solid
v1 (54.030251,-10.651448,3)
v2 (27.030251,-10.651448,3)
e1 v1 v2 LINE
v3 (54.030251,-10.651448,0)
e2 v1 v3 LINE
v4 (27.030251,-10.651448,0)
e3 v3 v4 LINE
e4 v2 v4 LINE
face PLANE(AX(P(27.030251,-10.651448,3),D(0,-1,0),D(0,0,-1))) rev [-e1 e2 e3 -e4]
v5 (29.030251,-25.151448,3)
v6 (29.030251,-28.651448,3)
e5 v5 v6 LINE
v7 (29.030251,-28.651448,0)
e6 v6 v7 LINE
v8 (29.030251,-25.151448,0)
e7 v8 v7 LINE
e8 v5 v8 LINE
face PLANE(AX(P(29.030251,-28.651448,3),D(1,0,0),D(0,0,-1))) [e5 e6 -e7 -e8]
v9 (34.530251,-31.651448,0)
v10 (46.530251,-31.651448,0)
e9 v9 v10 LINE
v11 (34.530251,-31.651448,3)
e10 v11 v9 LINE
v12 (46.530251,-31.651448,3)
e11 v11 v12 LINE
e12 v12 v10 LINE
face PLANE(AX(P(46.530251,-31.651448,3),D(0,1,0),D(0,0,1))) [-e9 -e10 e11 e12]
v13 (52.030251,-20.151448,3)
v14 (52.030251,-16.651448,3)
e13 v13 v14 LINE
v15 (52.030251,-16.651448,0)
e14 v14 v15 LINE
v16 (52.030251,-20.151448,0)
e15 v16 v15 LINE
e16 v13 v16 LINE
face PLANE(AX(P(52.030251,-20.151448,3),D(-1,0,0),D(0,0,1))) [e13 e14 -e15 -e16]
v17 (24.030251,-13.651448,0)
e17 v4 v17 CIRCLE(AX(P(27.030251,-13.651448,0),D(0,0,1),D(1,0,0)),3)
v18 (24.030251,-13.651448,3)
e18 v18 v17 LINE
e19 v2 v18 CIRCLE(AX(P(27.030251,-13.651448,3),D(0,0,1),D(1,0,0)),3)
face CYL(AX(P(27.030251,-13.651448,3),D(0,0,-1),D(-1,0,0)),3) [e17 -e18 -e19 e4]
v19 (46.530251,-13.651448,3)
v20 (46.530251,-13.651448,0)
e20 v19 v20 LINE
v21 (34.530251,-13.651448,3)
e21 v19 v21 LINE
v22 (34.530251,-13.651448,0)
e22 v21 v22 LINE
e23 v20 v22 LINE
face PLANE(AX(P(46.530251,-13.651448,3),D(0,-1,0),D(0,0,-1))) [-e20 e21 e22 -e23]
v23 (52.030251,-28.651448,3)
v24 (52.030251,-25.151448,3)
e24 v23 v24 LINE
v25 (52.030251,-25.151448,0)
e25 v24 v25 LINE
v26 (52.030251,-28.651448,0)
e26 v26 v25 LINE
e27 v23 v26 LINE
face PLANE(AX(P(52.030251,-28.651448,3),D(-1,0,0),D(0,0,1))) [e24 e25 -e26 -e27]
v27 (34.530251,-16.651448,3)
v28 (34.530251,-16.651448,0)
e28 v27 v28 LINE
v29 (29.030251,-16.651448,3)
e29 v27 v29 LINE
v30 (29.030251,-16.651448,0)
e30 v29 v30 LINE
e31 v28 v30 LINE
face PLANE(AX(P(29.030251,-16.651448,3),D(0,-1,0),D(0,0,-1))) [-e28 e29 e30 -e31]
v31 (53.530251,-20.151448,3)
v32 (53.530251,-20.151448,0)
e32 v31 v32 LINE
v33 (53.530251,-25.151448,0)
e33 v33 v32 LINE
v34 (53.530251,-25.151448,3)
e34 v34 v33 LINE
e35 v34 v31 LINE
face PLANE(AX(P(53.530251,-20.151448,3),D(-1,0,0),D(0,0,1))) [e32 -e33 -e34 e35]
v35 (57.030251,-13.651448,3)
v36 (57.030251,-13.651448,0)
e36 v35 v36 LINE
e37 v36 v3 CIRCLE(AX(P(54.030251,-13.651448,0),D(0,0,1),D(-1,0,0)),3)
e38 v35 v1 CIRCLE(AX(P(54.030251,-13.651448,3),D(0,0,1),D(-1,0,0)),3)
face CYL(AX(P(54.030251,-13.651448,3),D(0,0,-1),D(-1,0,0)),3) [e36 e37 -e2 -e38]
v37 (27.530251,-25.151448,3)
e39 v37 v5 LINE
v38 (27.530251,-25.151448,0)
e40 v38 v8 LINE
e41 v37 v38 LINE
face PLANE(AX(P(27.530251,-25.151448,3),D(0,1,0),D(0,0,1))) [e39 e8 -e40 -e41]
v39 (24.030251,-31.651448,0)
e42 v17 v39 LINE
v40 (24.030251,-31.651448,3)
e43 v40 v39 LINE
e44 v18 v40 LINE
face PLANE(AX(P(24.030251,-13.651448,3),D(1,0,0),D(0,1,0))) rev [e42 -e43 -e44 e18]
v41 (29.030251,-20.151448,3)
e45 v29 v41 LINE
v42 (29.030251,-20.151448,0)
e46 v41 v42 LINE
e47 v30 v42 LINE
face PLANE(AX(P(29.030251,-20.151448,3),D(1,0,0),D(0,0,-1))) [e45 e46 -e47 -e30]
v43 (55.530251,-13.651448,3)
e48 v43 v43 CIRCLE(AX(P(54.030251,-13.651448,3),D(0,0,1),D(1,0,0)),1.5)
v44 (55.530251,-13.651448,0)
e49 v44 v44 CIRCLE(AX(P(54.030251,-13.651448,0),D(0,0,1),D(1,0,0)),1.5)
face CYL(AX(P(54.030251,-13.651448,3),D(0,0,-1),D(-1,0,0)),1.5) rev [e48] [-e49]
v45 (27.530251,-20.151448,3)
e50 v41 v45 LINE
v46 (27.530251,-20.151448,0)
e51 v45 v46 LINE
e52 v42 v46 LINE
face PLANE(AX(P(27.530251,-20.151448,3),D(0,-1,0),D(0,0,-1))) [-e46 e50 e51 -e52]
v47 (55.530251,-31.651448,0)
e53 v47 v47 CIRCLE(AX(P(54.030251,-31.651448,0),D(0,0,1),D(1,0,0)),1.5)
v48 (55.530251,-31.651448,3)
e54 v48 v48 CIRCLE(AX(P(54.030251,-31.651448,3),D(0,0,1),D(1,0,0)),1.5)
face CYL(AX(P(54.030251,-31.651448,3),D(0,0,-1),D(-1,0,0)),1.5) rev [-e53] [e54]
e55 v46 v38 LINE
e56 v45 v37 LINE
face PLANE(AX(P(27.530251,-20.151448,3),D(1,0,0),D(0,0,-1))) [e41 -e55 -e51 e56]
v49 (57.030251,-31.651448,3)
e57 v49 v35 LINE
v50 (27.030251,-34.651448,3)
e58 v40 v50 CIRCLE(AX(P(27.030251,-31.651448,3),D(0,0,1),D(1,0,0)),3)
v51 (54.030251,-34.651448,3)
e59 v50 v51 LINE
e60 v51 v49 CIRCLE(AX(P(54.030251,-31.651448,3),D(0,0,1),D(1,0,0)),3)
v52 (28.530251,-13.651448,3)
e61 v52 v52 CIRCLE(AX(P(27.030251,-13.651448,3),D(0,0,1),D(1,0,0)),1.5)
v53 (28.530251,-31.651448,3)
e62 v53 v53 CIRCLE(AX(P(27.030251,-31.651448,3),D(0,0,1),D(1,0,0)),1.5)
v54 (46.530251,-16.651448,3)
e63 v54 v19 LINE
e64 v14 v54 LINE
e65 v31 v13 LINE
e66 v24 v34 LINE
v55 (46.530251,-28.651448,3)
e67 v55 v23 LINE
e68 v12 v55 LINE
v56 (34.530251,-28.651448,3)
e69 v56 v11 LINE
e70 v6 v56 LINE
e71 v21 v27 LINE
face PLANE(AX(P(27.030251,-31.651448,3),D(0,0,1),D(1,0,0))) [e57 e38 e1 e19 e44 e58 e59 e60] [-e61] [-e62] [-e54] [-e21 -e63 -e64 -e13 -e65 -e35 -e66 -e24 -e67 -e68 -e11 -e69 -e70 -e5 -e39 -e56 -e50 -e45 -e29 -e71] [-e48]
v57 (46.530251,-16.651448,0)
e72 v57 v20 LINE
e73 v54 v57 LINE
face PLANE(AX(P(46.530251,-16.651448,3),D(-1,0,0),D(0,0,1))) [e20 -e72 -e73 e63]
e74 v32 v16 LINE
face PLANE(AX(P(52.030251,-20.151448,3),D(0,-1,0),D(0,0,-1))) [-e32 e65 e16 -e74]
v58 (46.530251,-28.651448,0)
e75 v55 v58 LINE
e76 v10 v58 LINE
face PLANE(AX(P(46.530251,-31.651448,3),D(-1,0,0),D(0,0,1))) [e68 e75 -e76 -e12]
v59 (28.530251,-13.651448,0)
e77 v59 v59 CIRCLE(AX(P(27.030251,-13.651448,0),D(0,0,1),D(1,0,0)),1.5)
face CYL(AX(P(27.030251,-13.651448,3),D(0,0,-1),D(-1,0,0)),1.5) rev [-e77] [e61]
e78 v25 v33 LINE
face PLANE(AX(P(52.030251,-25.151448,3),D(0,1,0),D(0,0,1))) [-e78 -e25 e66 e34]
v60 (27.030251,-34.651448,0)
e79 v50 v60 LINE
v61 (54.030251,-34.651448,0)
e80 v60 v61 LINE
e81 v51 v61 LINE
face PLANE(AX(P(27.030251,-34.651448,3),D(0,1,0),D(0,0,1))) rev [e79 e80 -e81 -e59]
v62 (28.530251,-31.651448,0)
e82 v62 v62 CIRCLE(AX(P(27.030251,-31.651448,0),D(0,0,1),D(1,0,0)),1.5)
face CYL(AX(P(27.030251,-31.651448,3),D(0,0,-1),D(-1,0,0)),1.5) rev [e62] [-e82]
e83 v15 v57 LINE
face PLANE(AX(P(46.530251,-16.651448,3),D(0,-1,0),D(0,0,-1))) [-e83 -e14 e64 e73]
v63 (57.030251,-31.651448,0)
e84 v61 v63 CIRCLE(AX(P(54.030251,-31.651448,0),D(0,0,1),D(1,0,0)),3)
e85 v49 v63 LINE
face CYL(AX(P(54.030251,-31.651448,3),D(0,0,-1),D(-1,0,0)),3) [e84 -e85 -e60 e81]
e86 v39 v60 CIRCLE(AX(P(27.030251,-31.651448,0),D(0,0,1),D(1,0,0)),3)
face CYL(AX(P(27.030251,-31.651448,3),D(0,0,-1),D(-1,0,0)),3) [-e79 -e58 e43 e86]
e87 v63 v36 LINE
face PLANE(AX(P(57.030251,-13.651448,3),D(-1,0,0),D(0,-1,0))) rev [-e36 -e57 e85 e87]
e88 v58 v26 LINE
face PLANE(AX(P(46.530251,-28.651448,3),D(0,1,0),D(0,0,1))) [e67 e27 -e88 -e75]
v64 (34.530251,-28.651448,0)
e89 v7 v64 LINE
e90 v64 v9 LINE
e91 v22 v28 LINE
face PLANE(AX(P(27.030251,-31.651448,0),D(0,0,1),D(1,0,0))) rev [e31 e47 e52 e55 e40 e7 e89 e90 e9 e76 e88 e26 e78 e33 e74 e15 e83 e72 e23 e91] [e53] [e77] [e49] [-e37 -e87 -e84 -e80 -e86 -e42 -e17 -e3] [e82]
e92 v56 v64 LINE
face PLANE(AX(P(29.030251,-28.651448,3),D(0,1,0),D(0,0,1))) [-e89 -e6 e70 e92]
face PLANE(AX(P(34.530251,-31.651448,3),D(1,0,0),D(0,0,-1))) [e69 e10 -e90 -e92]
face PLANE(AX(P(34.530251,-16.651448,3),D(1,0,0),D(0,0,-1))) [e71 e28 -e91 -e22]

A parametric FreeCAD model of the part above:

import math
import FreeCAD as App
import Part
import Sketcher

V = App.Vector


def add_polygon(sketch, points):
    """Adds a closed chain of lines whose ends are joined by coincident constraints."""
    first, n = sketch.GeometryCount, len(points)
    for a, b in zip(points, points[1:] + points[:1]):
        sketch.addGeometry(Part.LineSegment(App.Vector(*a, 0), App.Vector(*b, 0)), False)
    for i in range(n):
        sketch.addConstraint(Sketcher.Constraint("Coincident", first + i, 2, first + (i + 1) % n, 1))

doc = App.newDocument("Part")
body = doc.addObject("PartDesign::Body", "Body")

# Sketch on XY plane
sketch1 = body.newObject("Sketcher::SketchObject", "Sketch")
sketch1.AttachmentSupport = (doc.getObject("XY_Plane"), [""])
sketch1.MapMode = "FlatFace"
sketch1.addGeometry(Part.LineSegment(V(54, -10.7, 0), V(27, -10.7, 0)), False)  # 0
sketch1.addGeometry(Part.ArcOfCircle(Part.Circle(V(27, -13.7, 0), V(0, 0, 1), 3), math.radians(90), math.radians(180)), False)  # 1
sketch1.addGeometry(Part.LineSegment(V(24, -13.7, 0), V(24, -31.7, 0)), False)  # 2
sketch1.addGeometry(Part.ArcOfCircle(Part.Circle(V(27, -31.7, 0), V(0, 0, 1), 3), math.radians(180), math.radians(270)), False)  # 3
sketch1.addGeometry(Part.LineSegment(V(27, -34.7, 0), V(54, -34.7, 0)), False)  # 4
sketch1.addGeometry(Part.ArcOfCircle(Part.Circle(V(54, -31.7, 0), V(0, 0, 1), 3), math.radians(-90), math.radians(0)), False)  # 5
sketch1.addGeometry(Part.LineSegment(V(57, -31.7, 0), V(57, -13.7, 0)), False)  # 6
sketch1.addGeometry(Part.ArcOfCircle(Part.Circle(V(54, -13.7, 0), V(0, 0, 1), 3), math.radians(0), math.radians(90)), False)  # 7
sketch1.addGeometry(Part.Circle(V(54, -31.7, 0), V(0, 0, 1), 1.5), False)  # 8
sketch1.addGeometry(Part.Circle(V(27, -31.7, 0), V(0, 0, 1), 1.5), False)  # 9
sketch1.addGeometry(Part.Circle(V(54, -13.7, 0), V(0, 0, 1), 1.5), False)  # 10
add_polygon(sketch1, [(29, -28.7), (29, -25.2), (27.5, -25.2), (27.5, -20.2), (29, -20.2), (29, -16.7), (34.5, -16.7), (34.5, -13.7), (46.5, -13.7), (46.5, -16.7), (52, -16.7), (52, -20.2), (53.5, -20.2), (53.5, -25.2), (52, -25.2), (52, -28.7), (46.5, -28.7), (46.5, -31.7), (34.5, -31.7), (34.5, -28.7)])  # lines 11-30
sketch1.addGeometry(Part.Circle(V(27, -13.7, 0), V(0, 0, 1), 1.5), False)  # 31
sketch1.addConstraint([
    Sketcher.Constraint("Tangent", 0, 2, 1, 1),
    Sketcher.Constraint("Tangent", 1, 2, 2, 1),
    Sketcher.Constraint("Tangent", 2, 2, 3, 1),
    Sketcher.Constraint("Tangent", 3, 2, 4, 1),
    Sketcher.Constraint("Tangent", 4, 2, 5, 1),
    Sketcher.Constraint("Tangent", 5, 2, 6, 1),
    Sketcher.Constraint("Tangent", 6, 2, 7, 1),
    Sketcher.Constraint("Tangent", 7, 2, 0, 1),
    Sketcher.Constraint("Horizontal", 0),
    Sketcher.Constraint("Vertical", 2),
    Sketcher.Constraint("Horizontal", 4),
    Sketcher.Constraint("Vertical", 6),
    Sketcher.Constraint("Vertical", 11),
    Sketcher.Constraint("Horizontal", 12),
    Sketcher.Constraint("Vertical", 13),
    Sketcher.Constraint("Horizontal", 14),
    Sketcher.Constraint("Vertical", 15),
    Sketcher.Constraint("Horizontal", 16),
    Sketcher.Constraint("Vertical", 17),
    Sketcher.Constraint("Horizontal", 18),
    Sketcher.Constraint("Vertical", 19),
    Sketcher.Constraint("Horizontal", 20),
    Sketcher.Constraint("Vertical", 21),
    Sketcher.Constraint("Horizontal", 22),
    Sketcher.Constraint("Vertical", 23),
    Sketcher.Constraint("Horizontal", 24),
    Sketcher.Constraint("Vertical", 25),
    Sketcher.Constraint("Horizontal", 26),
    Sketcher.Constraint("Vertical", 27),
    Sketcher.Constraint("Horizontal", 28),
    Sketcher.Constraint("Vertical", 29),
    Sketcher.Constraint("Horizontal", 30),
    Sketcher.Constraint("Coincident", 8, 3, 5, 3),
    Sketcher.Constraint("Coincident", 9, 3, 3, 3),
    Sketcher.Constraint("Coincident", 10, 3, 7, 3),
    Sketcher.Constraint("Coincident", 31, 3, 1, 3),
    Sketcher.Constraint("Equal", 1, 3),
    Sketcher.Constraint("Equal", 3, 5),
    Sketcher.Constraint("Equal", 5, 7),
    Sketcher.Constraint("Equal", 8, 9),
    Sketcher.Constraint("Equal", 9, 10),
    Sketcher.Constraint("Equal", 10, 31),
    Sketcher.Constraint("Horizontal", 6, 2, 17, 2),
    Sketcher.Constraint("Horizontal", 16, 2, 19, 2),
    Sketcher.Constraint("Horizontal", 14, 2, 21, 2),
    Sketcher.Constraint("Horizontal", 12, 2, 23, 2),
    Sketcher.Constraint("Horizontal", 5, 2, 27, 2),
    Sketcher.Constraint("Horizontal", 26, 2, 29, 2),
    Sketcher.Constraint("Vertical", 11, 2, 14, 2),
    Sketcher.Constraint("Vertical", 21, 2, 24, 2),
    Sketcher.Constraint("Vertical", 19, 2, 26, 2),
    Sketcher.Constraint("Vertical", 17, 2, 28, 2),
    Sketcher.Constraint("Equal", 16, 20),
    Sketcher.Constraint("Equal", 14, 22),
    Sketcher.Constraint("Equal", 11, 15),
    Sketcher.Constraint("Equal", 19, 27),
    Sketcher.Constraint("Diameter", 8, 3.0),
    Sketcher.Constraint("Radius", 1, 3.0),
    Sketcher.Constraint("DistanceX", 0, 2, 0, 1, 27.0),
    Sketcher.Constraint("DistanceX", 18, 1, 18, 2, 12.0),
    Sketcher.Constraint("DistanceY", 2, 2, 2, 1, 18.0),
    Sketcher.Constraint("DistanceY", 13, 1, 13, 2, 5.0),
    Sketcher.Constraint("DistanceY", 17, 1, 17, 2, 3.0),
    Sketcher.Constraint("DistanceX", 12, 2, 12, 1, 1.5),
    Sketcher.Constraint("DistanceX", 16, 1, 16, 2, 5.5),
    Sketcher.Constraint("DistanceX", 9, 3, 11, 2, 2.0),
    Sketcher.Constraint("DistanceX", -1, 1, 1, 3, 27.030251),
    Sketcher.Constraint("DistanceY", 1, 3, -1, 1, 13.651448),
])
pad1 = body.newObject("PartDesign::Pad", "Pad")
pad1.Profile = sketch1
pad1.Length = 3

doc.recompute()
